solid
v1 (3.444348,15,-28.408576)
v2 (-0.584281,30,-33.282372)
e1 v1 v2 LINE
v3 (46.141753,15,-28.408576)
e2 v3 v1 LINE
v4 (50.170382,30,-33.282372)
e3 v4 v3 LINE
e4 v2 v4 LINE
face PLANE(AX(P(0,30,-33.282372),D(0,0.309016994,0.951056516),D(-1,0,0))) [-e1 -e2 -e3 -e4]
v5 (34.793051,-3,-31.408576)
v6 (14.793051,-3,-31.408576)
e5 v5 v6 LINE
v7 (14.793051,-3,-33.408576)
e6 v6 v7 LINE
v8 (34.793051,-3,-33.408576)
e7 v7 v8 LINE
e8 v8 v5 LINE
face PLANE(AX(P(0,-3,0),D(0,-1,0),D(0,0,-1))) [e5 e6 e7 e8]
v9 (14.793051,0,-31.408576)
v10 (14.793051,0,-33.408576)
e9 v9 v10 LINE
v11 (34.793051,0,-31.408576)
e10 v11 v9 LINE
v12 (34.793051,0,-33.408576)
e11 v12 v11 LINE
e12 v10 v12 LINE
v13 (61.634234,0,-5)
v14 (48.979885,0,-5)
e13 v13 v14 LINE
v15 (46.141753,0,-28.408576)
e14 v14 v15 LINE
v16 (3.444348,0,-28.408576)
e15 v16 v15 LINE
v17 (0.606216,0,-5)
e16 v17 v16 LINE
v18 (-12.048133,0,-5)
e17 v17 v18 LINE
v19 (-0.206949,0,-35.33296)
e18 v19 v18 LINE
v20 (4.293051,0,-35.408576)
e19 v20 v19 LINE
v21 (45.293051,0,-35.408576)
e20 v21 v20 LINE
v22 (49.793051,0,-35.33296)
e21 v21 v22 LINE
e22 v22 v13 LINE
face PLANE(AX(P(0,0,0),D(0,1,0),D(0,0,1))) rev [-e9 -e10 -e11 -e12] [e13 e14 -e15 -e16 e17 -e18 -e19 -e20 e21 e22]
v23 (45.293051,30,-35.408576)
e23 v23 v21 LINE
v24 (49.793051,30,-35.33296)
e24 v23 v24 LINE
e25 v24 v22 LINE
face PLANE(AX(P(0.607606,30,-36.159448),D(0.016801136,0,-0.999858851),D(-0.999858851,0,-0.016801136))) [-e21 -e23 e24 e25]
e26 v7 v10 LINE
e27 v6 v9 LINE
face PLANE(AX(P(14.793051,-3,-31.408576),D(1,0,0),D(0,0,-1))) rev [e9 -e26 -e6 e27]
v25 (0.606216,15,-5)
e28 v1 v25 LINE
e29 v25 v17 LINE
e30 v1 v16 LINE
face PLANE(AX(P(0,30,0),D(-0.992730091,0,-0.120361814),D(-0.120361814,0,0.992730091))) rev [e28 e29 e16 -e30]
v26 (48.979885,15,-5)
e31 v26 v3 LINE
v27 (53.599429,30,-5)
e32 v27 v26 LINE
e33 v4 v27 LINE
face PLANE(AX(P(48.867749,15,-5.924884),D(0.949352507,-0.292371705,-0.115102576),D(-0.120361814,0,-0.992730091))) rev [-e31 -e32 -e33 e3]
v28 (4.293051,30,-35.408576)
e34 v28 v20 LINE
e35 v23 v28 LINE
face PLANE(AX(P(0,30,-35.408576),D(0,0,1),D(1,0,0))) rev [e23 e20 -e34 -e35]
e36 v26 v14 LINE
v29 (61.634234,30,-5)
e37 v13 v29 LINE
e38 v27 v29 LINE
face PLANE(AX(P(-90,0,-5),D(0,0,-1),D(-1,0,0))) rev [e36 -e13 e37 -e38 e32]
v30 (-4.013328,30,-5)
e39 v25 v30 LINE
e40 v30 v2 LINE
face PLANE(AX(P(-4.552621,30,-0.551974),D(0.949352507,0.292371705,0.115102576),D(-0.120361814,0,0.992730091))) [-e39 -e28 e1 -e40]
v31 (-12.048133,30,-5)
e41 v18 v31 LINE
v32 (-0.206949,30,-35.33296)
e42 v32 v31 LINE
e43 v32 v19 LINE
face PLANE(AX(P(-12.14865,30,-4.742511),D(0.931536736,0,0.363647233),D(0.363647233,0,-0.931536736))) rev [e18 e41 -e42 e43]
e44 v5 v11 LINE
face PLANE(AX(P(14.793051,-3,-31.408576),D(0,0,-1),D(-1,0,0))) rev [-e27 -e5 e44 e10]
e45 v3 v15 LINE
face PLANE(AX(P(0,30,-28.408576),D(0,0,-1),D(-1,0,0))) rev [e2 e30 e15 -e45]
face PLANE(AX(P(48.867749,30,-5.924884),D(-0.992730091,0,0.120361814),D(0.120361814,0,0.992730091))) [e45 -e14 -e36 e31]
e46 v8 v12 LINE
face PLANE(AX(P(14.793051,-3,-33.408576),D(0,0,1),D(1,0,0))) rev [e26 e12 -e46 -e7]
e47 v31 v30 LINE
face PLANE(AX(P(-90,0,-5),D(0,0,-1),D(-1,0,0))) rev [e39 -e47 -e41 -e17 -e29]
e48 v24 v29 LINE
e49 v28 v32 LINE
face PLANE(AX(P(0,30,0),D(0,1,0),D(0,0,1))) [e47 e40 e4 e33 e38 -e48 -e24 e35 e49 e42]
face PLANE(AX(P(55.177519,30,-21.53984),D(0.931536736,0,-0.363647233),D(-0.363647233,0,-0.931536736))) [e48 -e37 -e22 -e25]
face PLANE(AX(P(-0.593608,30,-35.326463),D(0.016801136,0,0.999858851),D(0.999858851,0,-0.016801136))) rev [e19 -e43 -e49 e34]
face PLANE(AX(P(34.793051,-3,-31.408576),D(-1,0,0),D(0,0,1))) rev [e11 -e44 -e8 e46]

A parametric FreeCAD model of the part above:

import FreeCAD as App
import Part
import Sketcher
Q = App.Units.Quantity


def edges_at(feature, points):
    """Names of the edges that pass closest to the given points."""
    edges = feature.Shape.Edges
    near = lambda p: min(range(len(edges)), key=lambda i: edges[i].distToShape(Part.Vertex(*p))[0])
    return sorted({f"Edge{near(p) + 1}" for p in points})

doc = App.newDocument("Part")
params = doc.addObject("Spreadsheet::Sheet", "Params")
for row, (alias, value) in enumerate([
    ("sketch1_width", "14 mm"),
    ("sketch1_width2", "41 mm"),
    ("pad1_length", "30 mm"),
    ("sketch2_width", "30 mm"),
    ("pocket1_length", "180 mm"),
    ("sketch3_width", "20 mm"),
    ("sketch3_height", "2 mm"),
    ("pad2_length", "3 mm"),
    ("chamfer_size", "15 mm"),
    ("chamfer_size2", "4.58596 mm"),
    ("chamfer2_size", "15 mm"),
    ("chamfer2_size2", "4.58596 mm"),
    ("chamfer3_size", "15 mm"),
    ("chamfer3_size2", "4.873795 mm"),
], start=1):
    params.set(f"A{row}", alias)
    params.set(f"B{row}", "=" + value)
    params.setAlias(f"B{row}", alias)

body = doc.addObject("PartDesign::Body", "Body")

sketch1 = body.newObject("Sketcher::SketchObject", "Sketch")
sketch1.AttachmentSupport = (doc.getObject("XZ_Plane"), [""])
sketch1.MapMode = "FlatFace"
sketch1.addGeometry([
    Part.LineSegment(App.Vector(4.3, -35.4, 0), App.Vector(-0.2, -35.3, 0)),
    Part.LineSegment(App.Vector(-0.2, -35.3, 0), App.Vector(-14, 0, 0)),
    Part.LineSegment(App.Vector(-14, 0, 0), App.Vector(0, 0, 0)),
    Part.LineSegment(App.Vector(0, 0, 0), App.Vector(3.4, -28.4, 0)),
    Part.LineSegment(App.Vector(3.4, -28.4, 0), App.Vector(46.1, -28.4, 0)),
    Part.LineSegment(App.Vector(46.1, -28.4, 0), App.Vector(49.6, 0, 0)),
    Part.LineSegment(App.Vector(49.6, 0, 0), App.Vector(63.6, 0, 0)),
    Part.LineSegment(App.Vector(63.6, 0, 0), App.Vector(49.8, -35.3, 0)),
    Part.LineSegment(App.Vector(49.8, -35.3, 0), App.Vector(45.3, -35.4, 0)),
    Part.LineSegment(App.Vector(45.3, -35.4, 0), App.Vector(4.3, -35.4, 0)),
], False)
sketch1.addConstraint([
    Sketcher.Constraint("Coincident", 0, 2, 1, 1),
    Sketcher.Constraint("Coincident", 1, 2, 2, 1),
    Sketcher.Constraint("Coincident", 2, 2, 3, 1),
    Sketcher.Constraint("Coincident", 3, 2, 4, 1),
    Sketcher.Constraint("Coincident", 4, 2, 5, 1),
    Sketcher.Constraint("Coincident", 5, 2, 6, 1),
    Sketcher.Constraint("Coincident", 6, 2, 7, 1),
    Sketcher.Constraint("Coincident", 7, 2, 8, 1),
    Sketcher.Constraint("Coincident", 8, 2, 9, 1),
    Sketcher.Constraint("Coincident", 9, 2, 0, 1),
    Sketcher.Constraint("Horizontal", 2),
    Sketcher.Constraint("Horizontal", 4),
    Sketcher.Constraint("Horizontal", 6),
    Sketcher.Constraint("Horizontal", 9),
    Sketcher.Constraint("Coincident", 2, 2, -1, 1),
    Sketcher.Constraint("PointOnObject", 5, 2, -1),
    Sketcher.Constraint("Horizontal", 0, 2, 7, 2),
    Sketcher.Constraint("Equal", 2, 6),
    Sketcher.Constraint("Equal", 3, 5),
    Sketcher.Constraint("Equal", 1, 7),
    Sketcher.Constraint("Equal", 0, 8),
    Sketcher.Constraint("DistanceX", 2, 1, 2, 2, Q("14 mm")),
    Sketcher.Constraint("DistanceX", 9, 2, 9, 1, Q("41 mm")),
    Sketcher.Constraint("DistanceX", 0, 2, 7, 2, Q("50 mm")),
    Sketcher.Constraint("DistanceY", 8, 2, 4, 2, Q("7 mm")),
    Sketcher.Constraint("DistanceX", -1, 1, 5, 2, Q("49.586101 mm")),
    Sketcher.Constraint("DistanceX", 4, 1, 4, 2, Q("42.697405 mm")),
    Sketcher.Constraint("DistanceY", 0, 2, -1, 1, Q("35.33296 mm")),
    Sketcher.Constraint("Distance", 0, Q("4.500635 mm")),
])
sketch1.setExpression("Constraints[21]", "Params.sketch1_width")
sketch1.setExpression("Constraints[22]", "Params.sketch1_width2")
pad1 = body.newObject("PartDesign::Pad", "Pad")
pad1.Profile = sketch1
pad1.setExpression("Length", "Params.pad1_length")
pad1.Reversed = True

sketch2 = body.newObject("Sketcher::SketchObject", "Sketch001")
sketch2.AttachmentSupport = (doc.getObject("YZ_Plane"), [""])
sketch2.MapMode = "FlatFace"
sketch2.addGeometry([
    Part.LineSegment(App.Vector(0, -5, 0), App.Vector(30, -5, 0)),
    Part.LineSegment(App.Vector(30, -5, 0), App.Vector(30, 5, 0)),
    Part.LineSegment(App.Vector(30, 5, 0), App.Vector(0, 5, 0)),
    Part.LineSegment(App.Vector(0, 5, 0), App.Vector(0, -5, 0)),
], False)
sketch2.addConstraint([
    Sketcher.Constraint("Coincident", 0, 2, 1, 1),
    Sketcher.Constraint("Coincident", 1, 2, 2, 1),
    Sketcher.Constraint("Coincident", 2, 2, 3, 1),
    Sketcher.Constraint("Coincident", 3, 2, 0, 1),
    Sketcher.Constraint("Horizontal", 0),
    Sketcher.Constraint("Vertical", 1),
    Sketcher.Constraint("Horizontal", 2),
    Sketcher.Constraint("Vertical", 3),
    Sketcher.Constraint("PointOnObject", 2, 2, -2),
    Sketcher.Constraint("DistanceX", 0, 1, 0, 2, Q("30 mm")),
    Sketcher.Constraint("DistanceY", 0, 2, -1, 1, Q("5 mm")),
    Sketcher.Constraint("DistanceY", 1, 1, 1, 2, Q("9.906611 mm")),
])
sketch2.setExpression("Constraints[9]", "Params.sketch2_width")
pocket1 = body.newObject("PartDesign::Pocket", "Pocket")
pocket1.Profile = sketch2
pocket1.setExpression("Length", "Params.pocket1_length")
pocket1.Midplane = True

sketch3 = body.newObject("Sketcher::SketchObject", "Sketch002")
sketch3.AttachmentSupport = (doc.getObject("XZ_Plane"), [""])
sketch3.MapMode = "FlatFace"
sketch3.addGeometry([
    Part.LineSegment(App.Vector(34.8, -33.4, 0), App.Vector(34.8, -31.4, 0)),
    Part.LineSegment(App.Vector(34.8, -31.4, 0), App.Vector(14.8, -31.4, 0)),
    Part.LineSegment(App.Vector(14.8, -31.4, 0), App.Vector(14.8, -33.4, 0)),
    Part.LineSegment(App.Vector(14.8, -33.4, 0), App.Vector(34.8, -33.4, 0)),
], False)
sketch3.addConstraint([
    Sketcher.Constraint("Coincident", 0, 2, 1, 1),
    Sketcher.Constraint("Coincident", 1, 2, 2, 1),
    Sketcher.Constraint("Coincident", 2, 2, 3, 1),
    Sketcher.Constraint("Coincident", 3, 2, 0, 1),
    Sketcher.Constraint("Vertical", 0),
    Sketcher.Constraint("Horizontal", 1),
    Sketcher.Constraint("Vertical", 2),
    Sketcher.Constraint("Horizontal", 3),
    Sketcher.Constraint("DistanceX", 1, 2, 1, 1, Q("20 mm")),
    Sketcher.Constraint("DistanceY", 0, 1, 0, 2, Q("2 mm")),
    Sketcher.Constraint("DistanceX", -1, 1, 0, 2, Q("34.793051 mm")),
    Sketcher.Constraint("DistanceY", 0, 2, -1, 1, Q("31.408576 mm")),
])
sketch3.setExpression("Constraints[8]", "Params.sketch3_width")
sketch3.setExpression("Constraints[9]", "Params.sketch3_height")
pad2 = body.newObject("PartDesign::Pad", "Pad001")
pad2.Profile = sketch3
pad2.setExpression("Length", "Params.pad2_length")
doc.recompute()

chamfer = body.newObject("PartDesign::Chamfer", "Chamfer")
chamfer.Base = (pad2, edges_at(pad2, [(2.025, 30, -16.704)]))
chamfer.ChamferType = "Two distances"
chamfer.setExpression("Size", "Params.chamfer_size")
chamfer.setExpression("Size2", "Params.chamfer_size2")
chamfer.FlipDirection = True
doc.recompute()

chamfer2 = body.newObject("PartDesign::Chamfer", "Chamfer001")
chamfer2.Base = (chamfer, edges_at(chamfer, [(47.561, 30, -16.704)]))
chamfer2.ChamferType = "Two distances"
chamfer2.setExpression("Size", "Params.chamfer2_size")
chamfer2.setExpression("Size2", "Params.chamfer2_size2")
chamfer2.FlipDirection = True
doc.recompute()

chamfer3 = body.newObject("PartDesign::Chamfer", "Chamfer002")
chamfer3.Base = (chamfer2, edges_at(chamfer2, [(24.793, 30, -28.409)]))
chamfer3.ChamferType = "Two distances"
chamfer3.setExpression("Size", "Params.chamfer3_size")
chamfer3.setExpression("Size2", "Params.chamfer3_size2")
chamfer3.FlipDirection = True

doc.recompute()
